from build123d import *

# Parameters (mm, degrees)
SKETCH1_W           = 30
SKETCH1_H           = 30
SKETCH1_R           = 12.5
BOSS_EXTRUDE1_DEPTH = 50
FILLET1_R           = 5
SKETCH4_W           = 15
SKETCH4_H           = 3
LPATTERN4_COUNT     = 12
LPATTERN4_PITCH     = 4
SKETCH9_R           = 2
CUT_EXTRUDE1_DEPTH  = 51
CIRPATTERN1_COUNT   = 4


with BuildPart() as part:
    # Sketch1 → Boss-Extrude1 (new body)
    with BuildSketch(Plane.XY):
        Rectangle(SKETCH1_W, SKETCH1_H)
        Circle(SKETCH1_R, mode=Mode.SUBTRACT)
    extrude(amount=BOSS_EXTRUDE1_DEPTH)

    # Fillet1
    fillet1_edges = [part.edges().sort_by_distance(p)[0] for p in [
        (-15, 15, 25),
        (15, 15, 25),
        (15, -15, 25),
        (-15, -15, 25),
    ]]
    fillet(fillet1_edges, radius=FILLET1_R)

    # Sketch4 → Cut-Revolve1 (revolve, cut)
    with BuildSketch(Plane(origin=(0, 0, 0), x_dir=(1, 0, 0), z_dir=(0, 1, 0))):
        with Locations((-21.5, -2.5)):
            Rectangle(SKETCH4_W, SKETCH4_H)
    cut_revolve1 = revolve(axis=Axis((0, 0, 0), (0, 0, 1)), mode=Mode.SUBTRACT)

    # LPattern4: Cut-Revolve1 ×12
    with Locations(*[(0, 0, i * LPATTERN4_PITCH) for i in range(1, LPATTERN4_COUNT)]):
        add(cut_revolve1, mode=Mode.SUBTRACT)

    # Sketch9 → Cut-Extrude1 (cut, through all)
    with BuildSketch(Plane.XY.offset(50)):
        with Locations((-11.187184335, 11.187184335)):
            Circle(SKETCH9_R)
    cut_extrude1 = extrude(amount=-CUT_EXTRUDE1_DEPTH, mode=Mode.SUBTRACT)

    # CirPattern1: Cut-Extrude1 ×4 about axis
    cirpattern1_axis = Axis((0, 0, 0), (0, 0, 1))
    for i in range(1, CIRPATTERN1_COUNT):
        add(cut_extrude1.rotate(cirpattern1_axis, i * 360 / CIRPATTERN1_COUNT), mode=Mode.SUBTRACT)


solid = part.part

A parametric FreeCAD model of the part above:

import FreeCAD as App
import Part
import Sketcher
Q = App.Units.Quantity


def edges_at(feature, points):
    """Names of the edges that pass closest to the given points."""
    edges = feature.Shape.Edges
    near = lambda p: min(range(len(edges)), key=lambda i: edges[i].distToShape(Part.Vertex(*p))[0])
    return sorted({f"Edge{near(p) + 1}" for p in points})


def add_polygon(sketch, points):
    """Adds a closed chain of lines whose ends are joined by coincident constraints."""
    first, n = sketch.GeometryCount, len(points)
    for a, b in zip(points, points[1:] + points[:1]):
        sketch.addGeometry(Part.LineSegment(App.Vector(*a, 0), App.Vector(*b, 0)), False)
    for i in range(n):
        sketch.addConstraint(Sketcher.Constraint("Coincident", first + i, 2, first + (i + 1) % n, 1))

doc = App.newDocument("Part")
body = doc.addObject("PartDesign::Body", "Body")

sketch1 = body.newObject("Sketcher::SketchObject", "Sketch")
sketch1.AttachmentSupport = (doc.getObject("XY_Plane"), [""])
sketch1.MapMode = "FlatFace"
add_polygon(sketch1, [(-15, 15), (-15, -15), (15, -15), (15, 15)])
sketch1.addGeometry(Part.Circle(App.Vector(0, 0, 0), App.Vector(0, 0, 1), 12), False)
sketch1.addConstraint([
    Sketcher.Constraint("Vertical", 0),
    Sketcher.Constraint("Horizontal", 1),
    Sketcher.Constraint("Vertical", 2),
    Sketcher.Constraint("Horizontal", 3),
    Sketcher.Constraint("Coincident", 4, 3, -1, 1),
    Sketcher.Constraint("Symmetric", 0, 2, 2, 2, -1, 1),
    Sketcher.Constraint("Equal", 3, 0),
    Sketcher.Constraint("Diameter", 4, Q("25 mm")),
    Sketcher.Constraint("DistanceX", 1, 1, 1, 2, Q("30 mm")),
])
pad1 = body.newObject("PartDesign::Pad", "Pad")
pad1.Profile = sketch1
pad1.Length = 50
doc.recompute()

fillet = body.newObject("PartDesign::Fillet", "Fillet")
fillet.Base = (pad1, edges_at(pad1, [
    (-15, 15, 25),
    (15, 15, 25),
    (15, -15, 25),
    (-15, -15, 25),
]))
fillet.Radius = 5

sketch2 = body.newObject("Sketcher::SketchObject", "Sketch001")
sketch2.AttachmentSupport = (doc.getObject("XZ_Plane"), [""])
sketch2.MapMode = "FlatFace"
add_polygon(sketch2, [(-29, 1), (-29, 4), (-14, 4), (-14, 1)])
sketch2.addConstraint([
    Sketcher.Constraint("Vertical", 0),
    Sketcher.Constraint("Horizontal", 1),
    Sketcher.Constraint("Vertical", 2),
    Sketcher.Constraint("Horizontal", 3),
    Sketcher.Constraint("DistanceX", 1, 1, 1, 2, Q("15 mm")),
    Sketcher.Constraint("DistanceY", 0, 1, 0, 2, Q("3 mm")),
    Sketcher.Constraint("DistanceX", 0, 2, -1, 1, Q("29 mm")),
    Sketcher.Constraint("DistanceY", -1, 1, 0, 2, Q("4 mm")),
])
groove = body.newObject("PartDesign::Groove", "Groove")
groove.Profile = sketch2
groove.ReferenceAxis = (sketch2, ["V_Axis"])
groove.Angle = 360
doc.recompute()

linearpattern = body.newObject("PartDesign::LinearPattern", "LinearPattern")
linearpattern.Originals = [groove]
linearpattern.Direction = (doc.getObject("Z_Axis"), [""])
linearpattern.Mode = "offset"
linearpattern.Offset = 4
linearpattern.Occurrences = 12
body.Tip = linearpattern

sketch3 = body.newObject("Sketcher::SketchObject", "Sketch002")
sketch3.AttachmentSupport = (doc.getObject("XY_Plane"), [""])
sketch3.MapMode = "FlatFace"
sketch3.AttachmentOffset = App.Placement(App.Vector(0, 0, 50), App.Rotation())
sketch3.addGeometry(Part.Circle(App.Vector(-11.2, 11.2, 0), App.Vector(0, 0, 1), 2), False)
sketch3.addConstraint([
    Sketcher.Constraint("Diameter", 0, Q("4 mm")),
    Sketcher.Constraint("DistanceX", 0, 3, -1, 1, Q("11.187184 mm")),
    Sketcher.Constraint("DistanceY", -1, 1, 0, 3, Q("11.187184 mm")),
])
pocket1 = body.newObject("PartDesign::Pocket", "Pocket")
pocket1.Profile = sketch3
pocket1.Type = "ThroughAll"
doc.recompute()

polarpattern = body.newObject("PartDesign::PolarPattern", "PolarPattern")
polarpattern.Originals = [pocket1]
polarpattern.Axis = (doc.getObject("Z_Axis"), [""])
polarpattern.Angle = 360
polarpattern.Occurrences = 4
body.Tip = polarpattern

doc.recompute()
